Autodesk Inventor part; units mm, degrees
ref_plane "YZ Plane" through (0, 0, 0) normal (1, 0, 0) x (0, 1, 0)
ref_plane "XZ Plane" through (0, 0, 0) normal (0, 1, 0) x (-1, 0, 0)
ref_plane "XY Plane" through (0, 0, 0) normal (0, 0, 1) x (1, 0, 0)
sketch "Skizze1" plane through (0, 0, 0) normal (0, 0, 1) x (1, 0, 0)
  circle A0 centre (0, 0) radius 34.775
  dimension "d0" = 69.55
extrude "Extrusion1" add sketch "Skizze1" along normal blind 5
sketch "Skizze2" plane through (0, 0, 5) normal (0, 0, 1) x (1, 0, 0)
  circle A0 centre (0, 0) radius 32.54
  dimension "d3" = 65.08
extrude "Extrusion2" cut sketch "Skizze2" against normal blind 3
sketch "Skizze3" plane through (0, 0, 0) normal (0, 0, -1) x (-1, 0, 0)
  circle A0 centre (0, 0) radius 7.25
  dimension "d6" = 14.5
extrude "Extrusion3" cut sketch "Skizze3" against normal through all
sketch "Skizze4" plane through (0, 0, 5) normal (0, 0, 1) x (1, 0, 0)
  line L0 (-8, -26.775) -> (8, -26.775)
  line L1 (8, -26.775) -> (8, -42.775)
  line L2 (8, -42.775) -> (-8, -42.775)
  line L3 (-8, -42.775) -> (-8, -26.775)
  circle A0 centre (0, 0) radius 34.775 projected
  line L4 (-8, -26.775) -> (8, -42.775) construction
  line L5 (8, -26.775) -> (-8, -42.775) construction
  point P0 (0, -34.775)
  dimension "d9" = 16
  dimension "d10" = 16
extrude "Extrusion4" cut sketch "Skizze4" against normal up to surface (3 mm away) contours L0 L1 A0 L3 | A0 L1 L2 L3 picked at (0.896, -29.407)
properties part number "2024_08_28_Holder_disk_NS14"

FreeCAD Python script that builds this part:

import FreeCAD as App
import Part
import Sketcher

V = App.Vector


def add_polygon(sketch, points):
    """Adds a closed chain of lines whose ends are joined by coincident constraints."""
    first, n = sketch.GeometryCount, len(points)
    for a, b in zip(points, points[1:] + points[:1]):
        sketch.addGeometry(Part.LineSegment(App.Vector(*a, 0), App.Vector(*b, 0)), False)
    for i in range(n):
        sketch.addConstraint(Sketcher.Constraint("Coincident", first + i, 2, first + (i + 1) % n, 1))

doc = App.newDocument("Part")
body = doc.addObject("PartDesign::Body", "Body")

sketch1 = body.newObject("Sketcher::SketchObject", "Sketch")
sketch1.AttachmentSupport = (doc.getObject("XY_Plane"), [""])
sketch1.MapMode = "FlatFace"
sketch1.addGeometry(Part.Circle(V(0, 0, 0), V(0, 0, 1), 35), False)
sketch1.addConstraint(Sketcher.Constraint("Coincident", 0, 3, -1, 1))
sketch1.addConstraint(Sketcher.Constraint("Diameter", 0, 69.55))
pad1 = body.newObject("PartDesign::Pad", "Pad")
pad1.Profile = sketch1
pad1.Length = 5

sketch2 = body.newObject("Sketcher::SketchObject", "Sketch001")
sketch2.AttachmentSupport = (doc.getObject("XY_Plane"), [""])
sketch2.MapMode = "FlatFace"
sketch2.AttachmentOffset = App.Placement(V(0, 0, 5), App.Rotation())
sketch2.addGeometry(Part.Circle(V(0, 0, 0), V(0, 0, 1), 33), False)
sketch2.addConstraint(Sketcher.Constraint("Coincident", 0, 3, -1, 1))
sketch2.addConstraint(Sketcher.Constraint("Diameter", 0, 65.08))
pocket1 = body.newObject("PartDesign::Pocket", "Pocket")
pocket1.Profile = sketch2
pocket1.Length = 3

sketch3 = body.newObject("Sketcher::SketchObject", "Sketch002")
sketch3.AttachmentSupport = (doc.getObject("XY_Plane"), [""])
sketch3.MapMode = "FlatFace"
sketch3.addGeometry(Part.Circle(V(0, 0, 0), V(0, 0, 1), 7), False)
sketch3.addConstraint(Sketcher.Constraint("Coincident", 0, 3, -1, 1))
sketch3.addConstraint(Sketcher.Constraint("Diameter", 0, 14.5))
pocket2 = body.newObject("PartDesign::Pocket", "Pocket001")
pocket2.Profile = sketch3
pocket2.Type = "ThroughAll"
pocket2.Reversed = True

sketch4 = body.newObject("Sketcher::SketchObject", "Sketch003")
sketch4.AttachmentSupport = (doc.getObject("XY_Plane"), [""])
sketch4.MapMode = "FlatFace"
sketch4.AttachmentOffset = App.Placement(V(0, 0, 5), App.Rotation())
add_polygon(sketch4, [(8, -27), (-8, -27), (-8, -43), (8, -43)])
sketch4.addConstraint(Sketcher.Constraint("Horizontal", 0))
sketch4.addConstraint(Sketcher.Constraint("Vertical", 1))
sketch4.addConstraint(Sketcher.Constraint("Horizontal", 2))
sketch4.addConstraint(Sketcher.Constraint("Vertical", 3))
sketch4.addConstraint(Sketcher.Constraint("Equal", 2, 1))
sketch4.addConstraint(Sketcher.Constraint("DistanceX", 0, 2, 0, 1, 16.0))
sketch4.addConstraint(Sketcher.Constraint("DistanceX", 0, 2, -1, 1, 8.0))
sketch4.addConstraint(Sketcher.Constraint("DistanceY", 0, 2, -1, 1, 26.775))
pocket3 = body.newObject("PartDesign::Pocket", "Pocket002")
pocket3.Profile = sketch4
pocket3.Length = 3

doc.recompute()
